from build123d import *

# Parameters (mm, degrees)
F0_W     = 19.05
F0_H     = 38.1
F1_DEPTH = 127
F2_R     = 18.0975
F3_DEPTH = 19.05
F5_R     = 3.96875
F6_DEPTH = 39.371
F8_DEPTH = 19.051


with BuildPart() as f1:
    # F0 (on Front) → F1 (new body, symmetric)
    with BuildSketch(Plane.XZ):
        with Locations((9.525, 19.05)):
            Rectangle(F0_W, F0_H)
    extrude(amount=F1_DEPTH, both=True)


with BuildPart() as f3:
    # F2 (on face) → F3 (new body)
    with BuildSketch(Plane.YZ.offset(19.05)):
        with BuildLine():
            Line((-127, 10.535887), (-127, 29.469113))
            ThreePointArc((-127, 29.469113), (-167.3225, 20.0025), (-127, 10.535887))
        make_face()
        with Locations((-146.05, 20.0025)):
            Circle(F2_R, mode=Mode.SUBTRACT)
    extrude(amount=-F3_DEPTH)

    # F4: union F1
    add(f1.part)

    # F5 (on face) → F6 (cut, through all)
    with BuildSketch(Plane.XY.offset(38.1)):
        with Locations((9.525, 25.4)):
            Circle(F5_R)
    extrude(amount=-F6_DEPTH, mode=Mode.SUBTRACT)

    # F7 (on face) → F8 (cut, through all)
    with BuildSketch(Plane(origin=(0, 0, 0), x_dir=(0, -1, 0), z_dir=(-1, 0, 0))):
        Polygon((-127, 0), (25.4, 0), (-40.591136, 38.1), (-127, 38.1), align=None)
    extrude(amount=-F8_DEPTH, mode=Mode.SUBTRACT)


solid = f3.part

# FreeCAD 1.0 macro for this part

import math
import FreeCAD as App
import Part
import Sketcher
Q = App.Units.Quantity


def add_polygon(sketch, points):
    """Adds a closed chain of lines whose ends are joined by coincident constraints."""
    first, n = sketch.GeometryCount, len(points)
    for a, b in zip(points, points[1:] + points[:1]):
        sketch.addGeometry(Part.LineSegment(App.Vector(*a, 0), App.Vector(*b, 0)), False)
    for i in range(n):
        sketch.addConstraint(Sketcher.Constraint("Coincident", first + i, 2, first + (i + 1) % n, 1))

doc = App.newDocument("Part")
body = doc.addObject("PartDesign::Body", "Body")

sketch1 = body.newObject("Sketcher::SketchObject", "Sketch")
sketch1.AttachmentSupport = (doc.getObject("XZ_Plane"), [""])
sketch1.MapMode = "FlatFace"
add_polygon(sketch1, [(0, 38), (0, 0), (19, 0), (19, 38)])
sketch1.addConstraint([
    Sketcher.Constraint("Vertical", 0),
    Sketcher.Constraint("Horizontal", 1),
    Sketcher.Constraint("Vertical", 2),
    Sketcher.Constraint("Horizontal", 3),
    Sketcher.Constraint("Coincident", 0, 2, -1, 1),
    Sketcher.Constraint("DistanceY", 0, 2, 0, 1, Q("1.5 in")),
    Sketcher.Constraint("DistanceX", 1, 1, 1, 2, Q("0.75 in")),
])
pad1 = body.newObject("PartDesign::Pad", "Pad")
pad1.Profile = sketch1
pad1.Length = Q("10 in")
pad1.Midplane = True
body2 = doc.addObject("PartDesign::Body", "Body001")

sketch2 = body2.newObject("Sketcher::SketchObject", "Sketch001")
sketch2.AttachmentSupport = (doc.getObject("YZ_Plane001"), [""])
sketch2.MapMode = "FlatFace"
sketch2.AttachmentOffset = App.Placement(App.Vector(0, 0, 0.75 * 25.4), App.Rotation())
sketch2.addGeometry([
    Part.LineSegment(App.Vector(-127, 11, 0), App.Vector(-127, 29, 0)),
    Part.ArcOfCircle(Part.Circle(App.Vector(-146, 20, 0), App.Vector(0, 0, 1), 21), math.radians(26), math.radians(334)),
    Part.Circle(App.Vector(-146, 20, 0), App.Vector(0, 0, 1), 18),
], False)
sketch2.addConstraint([
    Sketcher.Constraint("Coincident", 0, 1, 1, 2),
    Sketcher.Constraint("Coincident", 1, 1, 0, 2),
    Sketcher.Constraint("Vertical", 0),
    Sketcher.Constraint("Coincident", 2, 3, 1, 3),
    Sketcher.Constraint("Diameter", 2, Q("1.425 in")),
    Sketcher.Constraint("DistanceX", 0, 1, -1, 1, Q("5 in")),
    Sketcher.Constraint("Radius", 1, Q("0.8375 in")),
    Sketcher.Constraint("DistanceX", 1, 3, -1, 1, Q("5.75 in")),
    Sketcher.Constraint("DistanceY", -1, 1, 1, 3, Q("0.7875 in")),
])
pad2 = body2.newObject("PartDesign::Pad", "Pad001")
pad2.Profile = sketch2
pad2.Length = Q("0.75 in")
pad2.Reversed = True
doc.recompute()

boolean = body2.newObject("PartDesign::Boolean", "Boolean")
boolean.Type = "Fuse"
boolean.addObjects([body])

sketch3 = body2.newObject("Sketcher::SketchObject", "Sketch002")
sketch3.AttachmentSupport = (doc.getObject("XY_Plane001"), [""])
sketch3.MapMode = "FlatFace"
sketch3.AttachmentOffset = App.Placement(App.Vector(0, 0, 1.5 * 25.4), App.Rotation())
sketch3.addGeometry(Part.Circle(App.Vector(9.5, 25.4, 0), App.Vector(0, 0, 1), 4), False)
sketch3.addConstraint([
    Sketcher.Constraint("Diameter", 0, Q("0.3125 in")),
    Sketcher.Constraint("DistanceY", -1, 1, 0, 3, Q("1 in")),
    Sketcher.Constraint("DistanceX", -1, 1, 0, 3, Q("0.375 in")),
])
pocket1 = body2.newObject("PartDesign::Pocket", "Pocket")
pocket1.Profile = sketch3
pocket1.Type = "ThroughAll"

sketch4 = body2.newObject("Sketcher::SketchObject", "Sketch003")
sketch4.AttachmentSupport = (doc.getObject("YZ_Plane001"), [""])
sketch4.MapMode = "FlatFace"
add_polygon(sketch4, [(127, 0), (-25, 0), (41, 38), (127, 38)])
sketch4.addConstraint([
    Sketcher.Constraint("Horizontal", 0),
    Sketcher.Constraint("Horizontal", 2),
    Sketcher.Constraint("Vertical", 3),
    Sketcher.Constraint("PointOnObject", 0, 2, -1),
    Sketcher.Constraint("DistanceX", 0, 2, 0, 1, Q("6 in")),
    Sketcher.Constraint("Distance", 1, Q("3 in")),
    Sketcher.Constraint("DistanceY", 3, 2, 3, 1, Q("1.5 in")),
    Sketcher.Constraint("DistanceX", 0, 2, -1, 1, Q("1 in")),
])
pocket2 = body2.newObject("PartDesign::Pocket", "Pocket001")
pocket2.Profile = sketch4
pocket2.Type = "ThroughAll"
pocket2.Reversed = True

doc.recompute()
